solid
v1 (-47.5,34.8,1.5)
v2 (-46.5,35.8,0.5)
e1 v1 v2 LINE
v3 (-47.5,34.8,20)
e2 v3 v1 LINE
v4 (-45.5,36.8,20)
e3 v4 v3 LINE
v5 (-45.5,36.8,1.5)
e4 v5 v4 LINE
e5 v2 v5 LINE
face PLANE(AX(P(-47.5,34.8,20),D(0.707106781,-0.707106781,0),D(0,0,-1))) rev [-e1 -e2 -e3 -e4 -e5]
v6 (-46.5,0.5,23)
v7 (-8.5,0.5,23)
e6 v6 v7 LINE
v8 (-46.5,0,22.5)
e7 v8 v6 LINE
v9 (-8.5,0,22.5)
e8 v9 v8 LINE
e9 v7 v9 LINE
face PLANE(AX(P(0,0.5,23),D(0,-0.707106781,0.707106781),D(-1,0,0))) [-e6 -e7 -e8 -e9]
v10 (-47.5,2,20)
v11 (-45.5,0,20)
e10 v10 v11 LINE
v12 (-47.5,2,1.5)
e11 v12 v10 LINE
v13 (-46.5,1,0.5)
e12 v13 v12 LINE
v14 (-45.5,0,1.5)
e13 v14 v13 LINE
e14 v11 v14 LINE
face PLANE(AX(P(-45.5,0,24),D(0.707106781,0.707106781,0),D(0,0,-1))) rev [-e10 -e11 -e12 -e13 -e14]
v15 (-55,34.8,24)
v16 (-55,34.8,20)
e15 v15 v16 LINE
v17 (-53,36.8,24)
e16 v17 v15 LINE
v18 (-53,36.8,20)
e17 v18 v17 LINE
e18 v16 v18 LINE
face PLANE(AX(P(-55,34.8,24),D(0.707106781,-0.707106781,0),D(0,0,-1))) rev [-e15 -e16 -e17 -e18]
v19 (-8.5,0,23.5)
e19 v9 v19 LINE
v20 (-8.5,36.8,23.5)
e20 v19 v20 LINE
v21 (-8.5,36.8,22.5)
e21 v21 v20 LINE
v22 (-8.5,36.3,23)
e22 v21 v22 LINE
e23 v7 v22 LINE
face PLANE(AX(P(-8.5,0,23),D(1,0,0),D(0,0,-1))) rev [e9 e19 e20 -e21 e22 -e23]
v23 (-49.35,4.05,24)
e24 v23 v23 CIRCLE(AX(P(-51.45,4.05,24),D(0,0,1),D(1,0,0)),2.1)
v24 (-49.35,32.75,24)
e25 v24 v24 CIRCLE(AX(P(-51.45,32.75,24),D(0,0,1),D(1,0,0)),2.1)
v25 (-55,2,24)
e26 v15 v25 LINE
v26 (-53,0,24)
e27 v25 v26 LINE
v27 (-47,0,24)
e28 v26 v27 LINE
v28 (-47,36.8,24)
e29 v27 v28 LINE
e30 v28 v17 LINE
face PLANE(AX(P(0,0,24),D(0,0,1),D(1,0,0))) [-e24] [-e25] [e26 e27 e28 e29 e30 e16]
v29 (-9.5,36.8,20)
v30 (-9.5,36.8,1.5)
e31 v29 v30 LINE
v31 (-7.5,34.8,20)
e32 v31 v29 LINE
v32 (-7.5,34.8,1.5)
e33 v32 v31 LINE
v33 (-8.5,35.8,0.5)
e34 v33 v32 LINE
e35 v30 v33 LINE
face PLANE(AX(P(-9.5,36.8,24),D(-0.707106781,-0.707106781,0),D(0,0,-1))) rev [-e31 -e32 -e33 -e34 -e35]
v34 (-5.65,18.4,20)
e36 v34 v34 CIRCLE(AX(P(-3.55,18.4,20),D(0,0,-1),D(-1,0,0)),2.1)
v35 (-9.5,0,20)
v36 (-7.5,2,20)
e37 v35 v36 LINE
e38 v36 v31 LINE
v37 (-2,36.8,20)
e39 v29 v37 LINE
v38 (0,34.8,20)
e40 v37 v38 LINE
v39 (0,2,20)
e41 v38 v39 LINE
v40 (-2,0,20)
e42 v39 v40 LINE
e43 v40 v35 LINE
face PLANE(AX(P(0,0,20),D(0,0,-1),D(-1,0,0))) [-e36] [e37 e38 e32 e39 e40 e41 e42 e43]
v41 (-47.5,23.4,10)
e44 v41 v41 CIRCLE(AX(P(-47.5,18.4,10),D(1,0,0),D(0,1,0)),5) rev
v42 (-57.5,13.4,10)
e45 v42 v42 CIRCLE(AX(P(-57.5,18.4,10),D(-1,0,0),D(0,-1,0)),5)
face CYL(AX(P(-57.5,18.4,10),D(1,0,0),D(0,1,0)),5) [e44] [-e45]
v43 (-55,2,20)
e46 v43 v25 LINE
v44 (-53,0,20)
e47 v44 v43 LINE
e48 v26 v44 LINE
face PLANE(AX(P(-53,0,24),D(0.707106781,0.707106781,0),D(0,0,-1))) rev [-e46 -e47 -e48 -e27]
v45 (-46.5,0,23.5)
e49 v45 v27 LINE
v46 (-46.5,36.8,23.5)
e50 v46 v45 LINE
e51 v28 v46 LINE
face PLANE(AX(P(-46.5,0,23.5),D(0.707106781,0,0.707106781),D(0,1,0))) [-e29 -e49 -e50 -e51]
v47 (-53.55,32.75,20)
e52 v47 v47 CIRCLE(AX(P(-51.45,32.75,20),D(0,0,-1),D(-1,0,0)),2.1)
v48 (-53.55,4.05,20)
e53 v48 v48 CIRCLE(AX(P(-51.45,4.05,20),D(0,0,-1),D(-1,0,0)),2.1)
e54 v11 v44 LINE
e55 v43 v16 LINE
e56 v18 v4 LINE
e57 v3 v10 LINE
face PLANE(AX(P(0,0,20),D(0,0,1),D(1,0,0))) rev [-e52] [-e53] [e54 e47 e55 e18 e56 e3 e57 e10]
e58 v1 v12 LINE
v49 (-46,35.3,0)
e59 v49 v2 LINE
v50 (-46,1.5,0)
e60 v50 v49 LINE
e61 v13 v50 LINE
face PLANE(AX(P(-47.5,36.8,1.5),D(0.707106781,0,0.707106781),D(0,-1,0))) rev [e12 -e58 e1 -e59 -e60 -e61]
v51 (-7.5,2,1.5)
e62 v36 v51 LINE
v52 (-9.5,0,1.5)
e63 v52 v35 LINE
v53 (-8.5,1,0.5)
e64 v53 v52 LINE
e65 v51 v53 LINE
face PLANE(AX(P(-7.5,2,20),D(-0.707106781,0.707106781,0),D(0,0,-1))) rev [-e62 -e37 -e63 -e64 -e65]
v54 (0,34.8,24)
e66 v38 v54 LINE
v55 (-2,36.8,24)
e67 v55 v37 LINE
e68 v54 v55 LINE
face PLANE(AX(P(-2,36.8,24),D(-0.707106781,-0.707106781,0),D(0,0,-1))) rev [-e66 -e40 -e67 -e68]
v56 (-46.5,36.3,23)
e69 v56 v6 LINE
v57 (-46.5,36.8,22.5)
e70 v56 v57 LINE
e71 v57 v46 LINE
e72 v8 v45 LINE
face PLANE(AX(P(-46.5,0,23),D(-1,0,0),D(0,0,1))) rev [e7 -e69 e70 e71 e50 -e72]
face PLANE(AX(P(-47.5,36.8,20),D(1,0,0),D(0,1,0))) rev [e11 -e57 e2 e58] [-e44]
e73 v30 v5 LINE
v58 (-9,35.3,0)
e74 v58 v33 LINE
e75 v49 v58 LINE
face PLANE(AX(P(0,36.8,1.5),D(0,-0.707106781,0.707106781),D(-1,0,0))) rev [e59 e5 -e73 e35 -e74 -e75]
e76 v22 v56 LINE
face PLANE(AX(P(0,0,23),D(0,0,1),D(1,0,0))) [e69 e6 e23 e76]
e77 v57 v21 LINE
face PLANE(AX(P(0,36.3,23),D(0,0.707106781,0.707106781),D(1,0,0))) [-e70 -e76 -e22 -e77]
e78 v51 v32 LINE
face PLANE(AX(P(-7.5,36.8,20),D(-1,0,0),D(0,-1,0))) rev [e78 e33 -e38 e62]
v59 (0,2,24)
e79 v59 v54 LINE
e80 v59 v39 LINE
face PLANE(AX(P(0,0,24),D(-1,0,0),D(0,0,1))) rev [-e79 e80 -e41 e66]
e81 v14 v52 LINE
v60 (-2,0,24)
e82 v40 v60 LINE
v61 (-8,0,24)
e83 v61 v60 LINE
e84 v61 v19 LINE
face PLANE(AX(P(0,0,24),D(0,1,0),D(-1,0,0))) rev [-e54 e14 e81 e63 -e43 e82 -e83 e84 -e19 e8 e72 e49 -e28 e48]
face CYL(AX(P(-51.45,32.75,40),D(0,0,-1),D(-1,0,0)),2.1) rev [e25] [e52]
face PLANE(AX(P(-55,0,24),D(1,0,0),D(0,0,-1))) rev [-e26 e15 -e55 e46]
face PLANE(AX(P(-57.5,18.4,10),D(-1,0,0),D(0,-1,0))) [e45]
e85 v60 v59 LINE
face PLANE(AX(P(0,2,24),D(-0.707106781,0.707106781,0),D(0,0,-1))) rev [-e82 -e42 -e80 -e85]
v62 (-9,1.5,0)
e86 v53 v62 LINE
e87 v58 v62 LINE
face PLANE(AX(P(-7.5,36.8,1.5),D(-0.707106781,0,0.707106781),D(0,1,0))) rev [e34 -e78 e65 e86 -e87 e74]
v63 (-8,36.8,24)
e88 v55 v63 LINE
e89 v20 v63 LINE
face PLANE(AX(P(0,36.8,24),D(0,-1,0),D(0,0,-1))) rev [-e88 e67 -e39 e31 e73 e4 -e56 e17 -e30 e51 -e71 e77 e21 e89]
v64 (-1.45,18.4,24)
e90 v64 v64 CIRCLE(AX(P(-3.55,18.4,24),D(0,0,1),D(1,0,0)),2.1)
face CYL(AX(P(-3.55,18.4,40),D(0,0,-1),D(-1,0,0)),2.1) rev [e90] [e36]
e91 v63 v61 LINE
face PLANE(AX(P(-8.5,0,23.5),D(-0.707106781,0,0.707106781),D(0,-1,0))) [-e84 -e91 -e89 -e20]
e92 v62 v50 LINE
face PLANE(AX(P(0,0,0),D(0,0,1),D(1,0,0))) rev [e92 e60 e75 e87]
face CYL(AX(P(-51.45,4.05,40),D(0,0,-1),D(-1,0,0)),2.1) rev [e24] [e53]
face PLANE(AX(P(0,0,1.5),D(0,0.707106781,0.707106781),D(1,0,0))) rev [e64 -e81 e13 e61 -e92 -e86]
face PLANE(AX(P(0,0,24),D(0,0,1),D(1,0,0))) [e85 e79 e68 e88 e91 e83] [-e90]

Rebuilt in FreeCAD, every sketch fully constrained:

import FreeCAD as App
import Part
import Sketcher
from FreeCAD import Vector


def edges_at(feature, points):
    """Names of the edges that pass closest to the given points."""
    edges = feature.Shape.Edges
    near = lambda p: min(range(len(edges)), key=lambda i: edges[i].distToShape(Part.Vertex(*p))[0])
    return sorted({f"Edge{near(p) + 1}" for p in points})


def add_polygon(sketch, points):
    """Adds a closed chain of lines whose ends are joined by coincident constraints."""
    first, n = sketch.GeometryCount, len(points)
    for a, b in zip(points, points[1:] + points[:1]):
        sketch.addGeometry(Part.LineSegment(App.Vector(*a, 0), App.Vector(*b, 0)), False)
    for i in range(n):
        sketch.addConstraint(Sketcher.Constraint("Coincident", first + i, 2, first + (i + 1) % n, 1))

doc = App.newDocument("Part")
body = doc.addObject("PartDesign::Body", "Body")

# Sketch on XY plane
sketch1 = body.newObject("Sketcher::SketchObject", "Sketch")
sketch1.AttachmentSupport = (doc.getObject("XY_Plane"), [""])
sketch1.MapMode = "FlatFace"
add_polygon(sketch1, [(-55, 37), (-55, 0), (0, 0), (0, 37)])  # lines 0-3
sketch1.addConstraint([
    Sketcher.Constraint("Vertical", 0),
    Sketcher.Constraint("Horizontal", 1),
    Sketcher.Constraint("Vertical", 2),
    Sketcher.Constraint("Horizontal", 3),
    Sketcher.Constraint("Coincident", 1, 2, -1, 1),
    Sketcher.Constraint("DistanceX", 1, 1, 1, 2, 55.0),
    Sketcher.Constraint("DistanceY", 0, 2, 0, 1, 36.8),
])
pad1 = body.newObject("PartDesign::Pad", "Pad")
pad1.Profile = sketch1
pad1.Length = 24

# Sketch on XY plane
sketch2 = body.newObject("Sketcher::SketchObject", "Sketch001")
sketch2.AttachmentSupport = (doc.getObject("XY_Plane"), [""])
sketch2.MapMode = "FlatFace"
sketch2.AttachmentOffset = App.Placement(Vector(0, 0, 24), App.Rotation())
add_polygon(sketch2, [(-46, 37), (-46, 0), (-8, 0), (-8, 37)])  # lines 0-3
sketch2.addConstraint([
    Sketcher.Constraint("Vertical", 0),
    Sketcher.Constraint("Horizontal", 1),
    Sketcher.Constraint("Vertical", 2),
    Sketcher.Constraint("Horizontal", 3),
    Sketcher.Constraint("PointOnObject", 0, 2, -1),
    Sketcher.Constraint("DistanceX", 1, 1, 1, 2, 38.0),
    Sketcher.Constraint("DistanceY", 0, 2, 0, 1, 36.8),
    Sketcher.Constraint("DistanceX", 0, 2, -1, 1, 46.5),
])
pocket1 = body.newObject("PartDesign::Pocket", "Pocket")
pocket1.Profile = sketch2
pocket1.Length = 1
doc.recompute()

chamfer = body.newObject("PartDesign::Chamfer", "Chamfer")
chamfer.Base = (pocket1, edges_at(pocket1, [(-46.5, 18.4, 24), (-8.5, 18.4, 24)]))
chamfer.Size = 0.5
doc.recompute()

chamfer2 = body.newObject("PartDesign::Chamfer", "Chamfer001")
chamfer2.Base = (chamfer, edges_at(chamfer, [(-27.5, 36.8, 23), (-27.5, 0, 23)]))
chamfer2.Size = 0.5

# Sketch on XY plane
sketch3 = body.newObject("Sketcher::SketchObject", "Sketch002")
sketch3.AttachmentSupport = (doc.getObject("XY_Plane"), [""])
sketch3.MapMode = "FlatFace"
add_polygon(sketch3, [(0, 37), (0, 0), (-8, 0), (-8, 37)])  # lines 0-3
add_polygon(sketch3, [(-48, 37), (-48, 0), (-55, 0), (-55, 37)])  # lines 4-7
sketch3.addConstraint([
    Sketcher.Constraint("Vertical", 0),
    Sketcher.Constraint("Horizontal", 1),
    Sketcher.Constraint("Vertical", 2),
    Sketcher.Constraint("Horizontal", 3),
    Sketcher.Constraint("Vertical", 4),
    Sketcher.Constraint("Horizontal", 5),
    Sketcher.Constraint("Vertical", 6),
    Sketcher.Constraint("Horizontal", 7),
    Sketcher.Constraint("Coincident", 0, 2, -1, 1),
    Sketcher.Constraint("PointOnObject", 4, 2, -1),
    Sketcher.Constraint("Horizontal", 3, 2, 6, 2),
    Sketcher.Constraint("Equal", 3, 5),
    Sketcher.Constraint("DistanceX", 1, 2, 1, 1, 7.5),
    Sketcher.Constraint("DistanceY", 0, 2, 0, 1, 36.8),
    Sketcher.Constraint("DistanceX", 5, 2, -1, 1, 55.0),
])
pocket2 = body.newObject("PartDesign::Pocket", "Pocket001")
pocket2.Profile = sketch3
pocket2.Length = 20
pocket2.Reversed = True
doc.recompute()

chamfer3 = body.newObject("PartDesign::Chamfer", "Chamfer002")
chamfer3.Base = (pocket2, edges_at(pocket2, [
    (-27.5, 0, 0),
    (-27.5, 36.8, 0),
    (-7.5, 18.4, 0),
    (-47.5, 18.4, 0),
]))
chamfer3.Size = 1.5
doc.recompute()

chamfer4 = body.newObject("PartDesign::Chamfer", "Chamfer003")
chamfer4.Base = (chamfer3, edges_at(chamfer3, [
    (-7.5, 36.8, 10.75),
    (-7.5, 0, 10.75),
    (-47.5, 0, 10.75),
    (-47.5, 36.8, 10.75),
]))
chamfer4.Size = 2
doc.recompute()

chamfer5 = body.newObject("PartDesign::Chamfer", "Chamfer004")
chamfer5.Base = (chamfer4, edges_at(chamfer4, [
    (0, 0, 22),
    (-55, 0, 22),
    (-55, 36.8, 22),
    (0, 36.8, 22),
]))
chamfer5.Size = 2

# Sketch on XY plane
sketch4 = body.newObject("Sketcher::SketchObject", "Sketch003")
sketch4.AttachmentSupport = (doc.getObject("XY_Plane"), [""])
sketch4.MapMode = "FlatFace"
sketch4.AttachmentOffset = App.Placement(Vector(0, 0, 20), App.Rotation())
sketch4.addGeometry([
    Part.Circle(Vector(-3.5, 18.4, 0), Vector(0, 0, 1), 2.1),
    Part.Circle(Vector(-51.5, 32.8, 0), Vector(0, 0, 1), 2.1),
    Part.Circle(Vector(-51.5, 4, 0), Vector(0, 0, 1), 2.1),
], False)
sketch4.addConstraint([
    Sketcher.Constraint("Equal", 0, 1),
    Sketcher.Constraint("Equal", 1, 2),
    Sketcher.Constraint("Vertical", 1, 3, 2, 3),
    Sketcher.Constraint("Diameter", 0, 4.2),
    Sketcher.Constraint("DistanceY", -1, 1, 0, 3, 18.4),
    Sketcher.Constraint("DistanceX", 1, 3, 0, 3, 47.9),
    Sketcher.Constraint("DistanceY", 2, 3, 1, 3, 28.7),
    Sketcher.Constraint("DistanceX", 0, 3, -1, 1, 3.55),
    Sketcher.Constraint("DistanceY", -1, 1, 1, 3, 32.75),
])
pocket3 = body.newObject("PartDesign::Pocket", "Pocket002")
pocket3.Profile = sketch4
pocket3.Length = 20
pocket3.Reversed = True

# Sketch on YZ plane
sketch5 = body.newObject("Sketcher::SketchObject", "Sketch004")
sketch5.AttachmentSupport = (doc.getObject("YZ_Plane"), [""])
sketch5.MapMode = "FlatFace"
sketch5.AttachmentOffset = App.Placement(Vector(0, 0, -47.5), App.Rotation())
sketch5.addGeometry(Part.Circle(Vector(18, 10, 0), Vector(0, 0, 1), 5), False)
sketch5.addConstraint([
    Sketcher.Constraint("Diameter", 0, 10.0),
    Sketcher.Constraint("DistanceY", -1, 1, 0, 3, 10.0),
    Sketcher.Constraint("DistanceX", -1, 1, 0, 3, 18.4),
])
pad2 = body.newObject("PartDesign::Pad", "Pad001")
pad2.Profile = sketch5
pad2.Length = 10
pad2.Reversed = True

doc.recompute()
